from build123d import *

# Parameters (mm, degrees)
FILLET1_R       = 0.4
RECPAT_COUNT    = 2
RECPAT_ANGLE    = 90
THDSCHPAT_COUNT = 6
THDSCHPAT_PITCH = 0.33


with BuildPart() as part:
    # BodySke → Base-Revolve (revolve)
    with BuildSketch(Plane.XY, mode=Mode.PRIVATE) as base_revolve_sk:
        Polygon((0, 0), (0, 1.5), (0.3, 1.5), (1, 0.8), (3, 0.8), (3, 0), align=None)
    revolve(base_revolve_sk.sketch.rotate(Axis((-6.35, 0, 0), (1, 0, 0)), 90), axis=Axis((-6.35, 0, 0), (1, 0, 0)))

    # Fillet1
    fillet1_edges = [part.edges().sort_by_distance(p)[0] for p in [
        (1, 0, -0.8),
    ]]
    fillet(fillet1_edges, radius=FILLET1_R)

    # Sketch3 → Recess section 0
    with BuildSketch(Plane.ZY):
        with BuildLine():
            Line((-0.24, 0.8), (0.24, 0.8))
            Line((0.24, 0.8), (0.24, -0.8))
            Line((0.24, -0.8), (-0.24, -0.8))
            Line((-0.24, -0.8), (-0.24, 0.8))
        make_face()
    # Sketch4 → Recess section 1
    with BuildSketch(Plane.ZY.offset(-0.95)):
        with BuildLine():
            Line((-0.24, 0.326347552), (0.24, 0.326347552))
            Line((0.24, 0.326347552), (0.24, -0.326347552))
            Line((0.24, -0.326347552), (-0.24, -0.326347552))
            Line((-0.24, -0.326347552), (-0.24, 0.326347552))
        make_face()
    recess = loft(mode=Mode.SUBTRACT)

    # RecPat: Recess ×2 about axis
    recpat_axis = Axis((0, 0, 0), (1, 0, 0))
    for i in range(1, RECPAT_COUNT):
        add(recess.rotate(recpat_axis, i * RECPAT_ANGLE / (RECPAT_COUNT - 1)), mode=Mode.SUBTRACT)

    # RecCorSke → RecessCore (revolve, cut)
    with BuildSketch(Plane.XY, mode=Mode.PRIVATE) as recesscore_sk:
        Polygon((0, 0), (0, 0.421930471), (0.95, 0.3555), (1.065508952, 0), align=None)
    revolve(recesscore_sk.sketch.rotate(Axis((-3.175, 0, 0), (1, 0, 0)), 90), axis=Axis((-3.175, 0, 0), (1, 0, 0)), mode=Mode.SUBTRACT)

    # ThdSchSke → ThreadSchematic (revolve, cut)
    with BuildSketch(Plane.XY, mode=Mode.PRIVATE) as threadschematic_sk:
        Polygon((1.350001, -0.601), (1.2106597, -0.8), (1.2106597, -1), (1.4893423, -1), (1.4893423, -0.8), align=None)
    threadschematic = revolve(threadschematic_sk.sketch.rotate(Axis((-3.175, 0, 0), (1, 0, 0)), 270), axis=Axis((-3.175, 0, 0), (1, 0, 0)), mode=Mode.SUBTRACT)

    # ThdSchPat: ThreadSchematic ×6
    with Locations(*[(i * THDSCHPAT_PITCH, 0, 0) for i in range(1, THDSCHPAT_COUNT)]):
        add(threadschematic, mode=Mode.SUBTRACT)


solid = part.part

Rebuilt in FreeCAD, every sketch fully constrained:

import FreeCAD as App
import Part
import Sketcher

V = App.Vector
Q = App.Units.Quantity


def edges_at(feature, points):
    """Names of the edges that pass closest to the given points."""
    edges = feature.Shape.Edges
    near = lambda p: min(range(len(edges)), key=lambda i: edges[i].distToShape(Part.Vertex(*p))[0])
    return sorted({f"Edge{near(p) + 1}" for p in points})

doc = App.newDocument("Part")
body = doc.addObject("PartDesign::Body", "Body")

sketch1 = body.newObject("Sketcher::SketchObject", "Sketch")
sketch1.AttachmentSupport = (doc.getObject("XY_Plane"), [""])
sketch1.MapMode = "FlatFace"
sketch1.addGeometry(Part.LineSegment(V(0, 1.5, 0), V(0, 0, 0)), False)
sketch1.addGeometry(Part.LineSegment(V(0, 0, 0), V(3, 0, 0)), False)
sketch1.addGeometry(Part.LineSegment(V(3, 0, 0), V(3, 0.8, 0)), False)
sketch1.addGeometry(Part.LineSegment(V(3, 0.8, 0), V(1, 0.8, 0)), False)
sketch1.addGeometry(Part.LineSegment(V(1, 0.8, 0), V(0.3, 1.5, 0)), False)
sketch1.addGeometry(Part.LineSegment(V(0.3, 1.5, 0), V(0, 1.5, 0)), False)
sketch1.addConstraint(Sketcher.Constraint("Coincident", 0, 2, 1, 1))
sketch1.addConstraint(Sketcher.Constraint("Coincident", 1, 2, 2, 1))
sketch1.addConstraint(Sketcher.Constraint("Coincident", 2, 2, 3, 1))
sketch1.addConstraint(Sketcher.Constraint("Coincident", 3, 2, 4, 1))
sketch1.addConstraint(Sketcher.Constraint("Coincident", 4, 2, 5, 1))
sketch1.addConstraint(Sketcher.Constraint("Coincident", 5, 2, 0, 1))
sketch1.addConstraint(Sketcher.Constraint("Vertical", 0))
sketch1.addConstraint(Sketcher.Constraint("Horizontal", 1))
sketch1.addConstraint(Sketcher.Constraint("Vertical", 2))
sketch1.addConstraint(Sketcher.Constraint("Horizontal", 3))
sketch1.addConstraint(Sketcher.Constraint("Horizontal", 5))
sketch1.addConstraint(Sketcher.Constraint("Coincident", 0, 2, -1, 1))
sketch1.addConstraint(Sketcher.Constraint("DistanceX", 1, 1, 1, 2, Q("3 mm")))
sketch1.addConstraint(Sketcher.Constraint("DistanceX", 3, 2, 3, 1, Q("2 mm")))
sketch1.addConstraint(Sketcher.Constraint("Angle", 4, Q("135 deg")))
sketch1.addConstraint(Sketcher.Constraint("DistanceX", 5, 2, 5, 1, Q("0.3 mm")))
sketch1.addConstraint(Sketcher.Constraint("DistanceY", 0, 2, 0, 1, Q("1.5 mm")))
revolution = body.newObject("PartDesign::Revolution", "Revolution")
revolution.Profile = sketch1
revolution.ReferenceAxis = (sketch1, ["H_Axis"])
revolution.Angle = 360
doc.recompute()

fillet = body.newObject("PartDesign::Fillet", "Fillet")
fillet.Base = (revolution, edges_at(revolution, [(1, 0, -0.8)]))
fillet.Radius = 0.4

sketch2 = body.newObject("Sketcher::SketchObject", "Sketch001")
sketch2.AttachmentSupport = (doc.getObject("YZ_Plane"), [""])
sketch2.MapMode = "FlatFace"
sketch2.addGeometry(Part.LineSegment(V(0.8, 0.24, 0), V(0.8, -0.24, 0)), False)
sketch2.addGeometry(Part.LineSegment(V(0.8, -0.24, 0), V(-0.8, -0.24, 0)), False)
sketch2.addGeometry(Part.LineSegment(V(-0.8, -0.24, 0), V(-0.8, 0.24, 0)), False)
sketch2.addGeometry(Part.LineSegment(V(-0.8, 0.24, 0), V(0.8, 0.24, 0)), False)
sketch2.addConstraint(Sketcher.Constraint("Coincident", 0, 2, 1, 1))
sketch2.addConstraint(Sketcher.Constraint("Coincident", 1, 2, 2, 1))
sketch2.addConstraint(Sketcher.Constraint("Coincident", 2, 2, 3, 1))
sketch2.addConstraint(Sketcher.Constraint("Coincident", 3, 2, 0, 1))
sketch2.addConstraint(Sketcher.Constraint("Vertical", 0))
sketch2.addConstraint(Sketcher.Constraint("Horizontal", 1))
sketch2.addConstraint(Sketcher.Constraint("Vertical", 2))
sketch2.addConstraint(Sketcher.Constraint("Horizontal", 3))
sketch2.addConstraint(Sketcher.Constraint("Symmetric", 0, 2, 2, 2, -1, 1))
sketch2.addConstraint(Sketcher.Constraint("DistanceX", 1, 2, 1, 1, Q("1.6 mm")))
sketch2.addConstraint(Sketcher.Constraint("DistanceY", 0, 2, 0, 1, Q("0.48 mm")))

sketch3 = body.newObject("Sketcher::SketchObject", "Sketch002")
sketch3.AttachmentSupport = (doc.getObject("YZ_Plane"), [""])
sketch3.MapMode = "FlatFace"
sketch3.AttachmentOffset = App.Placement(V(0, 0, 0.95), App.Rotation())
sketch3.addGeometry(Part.LineSegment(V(0.326348, 0.24, 0), V(0.326348, -0.24, 0)), False)
sketch3.addGeometry(Part.LineSegment(V(0.326348, -0.24, 0), V(-0.326348, -0.24, 0)), False)
sketch3.addGeometry(Part.LineSegment(V(-0.326348, -0.24, 0), V(-0.326348, 0.24, 0)), False)
sketch3.addGeometry(Part.LineSegment(V(-0.326348, 0.24, 0), V(0.326348, 0.24, 0)), False)
sketch3.addConstraint(Sketcher.Constraint("Coincident", 0, 2, 1, 1))
sketch3.addConstraint(Sketcher.Constraint("Coincident", 1, 2, 2, 1))
sketch3.addConstraint(Sketcher.Constraint("Coincident", 2, 2, 3, 1))
sketch3.addConstraint(Sketcher.Constraint("Coincident", 3, 2, 0, 1))
sketch3.addConstraint(Sketcher.Constraint("Vertical", 0))
sketch3.addConstraint(Sketcher.Constraint("Horizontal", 1))
sketch3.addConstraint(Sketcher.Constraint("Vertical", 2))
sketch3.addConstraint(Sketcher.Constraint("Horizontal", 3))
sketch3.addConstraint(Sketcher.Constraint("Symmetric", 0, 2, 2, 2, -1, 1))
sketch3.addConstraint(Sketcher.Constraint("DistanceY", 0, 2, 0, 1, Q("0.48 mm")))
sketch3.addConstraint(Sketcher.Constraint("DistanceX", 1, 2, 1, 1, Q("0.652695 mm")))

subtractiveloft = body.newObject("PartDesign::SubtractiveLoft", "SubtractiveLoft")
subtractiveloft.Profile = sketch2
subtractiveloft.Sections = [sketch3]
doc.recompute()

polarpattern = body.newObject("PartDesign::PolarPattern", "PolarPattern")
polarpattern.Originals = [subtractiveloft]
polarpattern.Axis = (doc.getObject("X_Axis"), [""])
polarpattern.Angle = 90
polarpattern.Occurrences = 2
body.Tip = polarpattern

sketch4 = body.newObject("Sketcher::SketchObject", "Sketch003")
sketch4.AttachmentSupport = (doc.getObject("XY_Plane"), [""])
sketch4.MapMode = "FlatFace"
sketch4.addGeometry(Part.LineSegment(V(0, 0.42193, 0), V(0, 0, 0)), False)
sketch4.addGeometry(Part.LineSegment(V(0, 0, 0), V(1.065509, 0, 0)), False)
sketch4.addGeometry(Part.LineSegment(V(1.065509, 0, 0), V(0.95, 0.3555, 0)), False)
sketch4.addGeometry(Part.LineSegment(V(0.95, 0.3555, 0), V(0, 0.42193, 0)), False)
sketch4.addConstraint(Sketcher.Constraint("Coincident", 0, 2, 1, 1))
sketch4.addConstraint(Sketcher.Constraint("Coincident", 1, 2, 2, 1))
sketch4.addConstraint(Sketcher.Constraint("Coincident", 2, 2, 3, 1))
sketch4.addConstraint(Sketcher.Constraint("Coincident", 3, 2, 0, 1))
sketch4.addConstraint(Sketcher.Constraint("Vertical", 0))
sketch4.addConstraint(Sketcher.Constraint("Horizontal", 1))
sketch4.addConstraint(Sketcher.Constraint("Coincident", 0, 2, -1, 1))
sketch4.addConstraint(Sketcher.Constraint("Angle", 2, Q("108 deg")))
sketch4.addConstraint(Sketcher.Constraint("Angle", 3, Q("176 deg")))
sketch4.addConstraint(Sketcher.Constraint("DistanceX", -1, 1, 2, 2, Q("0.95 mm")))
sketch4.addConstraint(Sketcher.Constraint("DistanceX", 1, 1, 1, 2, Q("1.065509 mm")))
groove = body.newObject("PartDesign::Groove", "Groove")
groove.Profile = sketch4
groove.ReferenceAxis = (sketch4, ["H_Axis"])
groove.Angle = 360

sketch5 = body.newObject("Sketcher::SketchObject", "Sketch004")
sketch5.AttachmentSupport = (doc.getObject("XY_Plane"), [""])
sketch5.MapMode = "FlatFace"
sketch5.addGeometry(Part.LineSegment(V(1.350001, -0.601, 0), V(1.21066, -0.8, 0)), False)
sketch5.addGeometry(Part.LineSegment(V(1.21066, -0.8, 0), V(1.21066, -1, 0)), False)
sketch5.addGeometry(Part.LineSegment(V(1.21066, -1, 0), V(1.489342, -1, 0)), False)
sketch5.addGeometry(Part.LineSegment(V(1.489342, -1, 0), V(1.489342, -0.8, 0)), False)
sketch5.addGeometry(Part.LineSegment(V(1.489342, -0.8, 0), V(1.350001, -0.601, 0)), False)
sketch5.addConstraint(Sketcher.Constraint("Coincident", 0, 2, 1, 1))
sketch5.addConstraint(Sketcher.Constraint("Coincident", 1, 2, 2, 1))
sketch5.addConstraint(Sketcher.Constraint("Coincident", 2, 2, 3, 1))
sketch5.addConstraint(Sketcher.Constraint("Coincident", 3, 2, 4, 1))
sketch5.addConstraint(Sketcher.Constraint("Coincident", 4, 2, 0, 1))
sketch5.addConstraint(Sketcher.Constraint("Vertical", 1))
sketch5.addConstraint(Sketcher.Constraint("Horizontal", 2))
sketch5.addConstraint(Sketcher.Constraint("Vertical", 3))
sketch5.addConstraint(Sketcher.Constraint("Horizontal", 0, 2, 3, 2))
sketch5.addConstraint(Sketcher.Constraint("Equal", 0, 4))
sketch5.addConstraint(Sketcher.Constraint("Angle", 0, Q("-125 deg")))
sketch5.addConstraint(Sketcher.Constraint("DistanceY", 1, 2, 1, 1, Q("0.2 mm")))
sketch5.addConstraint(Sketcher.Constraint("DistanceY", 1, 2, -1, 1, Q("1 mm")))
sketch5.addConstraint(Sketcher.Constraint("DistanceX", -1, 1, 4, 2, Q("1.350001 mm")))
sketch5.addConstraint(Sketcher.Constraint("DistanceY", 4, 2, -1, 1, Q("0.601 mm")))
groove2 = body.newObject("PartDesign::Groove", "Groove001")
groove2.Profile = sketch5
groove2.ReferenceAxis = (sketch5, ["H_Axis"])
groove2.Angle = 360
doc.recompute()

linearpattern = body.newObject("PartDesign::LinearPattern", "LinearPattern")
linearpattern.Originals = [groove2]
linearpattern.Direction = (doc.getObject("X_Axis"), [""])
linearpattern.Mode = "offset"
linearpattern.Offset = 0.33
linearpattern.Occurrences = 6
body.Tip = linearpattern

doc.recompute()
